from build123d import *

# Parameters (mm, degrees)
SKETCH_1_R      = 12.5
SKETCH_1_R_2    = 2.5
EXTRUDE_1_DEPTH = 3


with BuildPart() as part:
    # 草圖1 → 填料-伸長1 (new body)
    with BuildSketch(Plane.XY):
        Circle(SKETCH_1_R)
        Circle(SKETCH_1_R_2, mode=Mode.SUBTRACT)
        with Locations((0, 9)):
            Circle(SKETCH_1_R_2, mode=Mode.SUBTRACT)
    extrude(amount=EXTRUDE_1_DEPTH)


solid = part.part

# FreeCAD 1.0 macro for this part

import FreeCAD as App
import Part
import Sketcher
Q = App.Units.Quantity

doc = App.newDocument("Part")
body = doc.addObject("PartDesign::Body", "Body")

sketch1 = body.newObject("Sketcher::SketchObject", "Sketch")
sketch1.AttachmentSupport = (doc.getObject("XY_Plane"), [""])
sketch1.MapMode = "FlatFace"
sketch1.addGeometry([
    Part.Circle(App.Vector(0, 0, 0), App.Vector(0, 0, 1), 12.5),
    Part.Circle(App.Vector(0, 0, 0), App.Vector(0, 0, 1), 2.5),
    Part.Circle(App.Vector(0, 9, 0), App.Vector(0, 0, 1), 2.5),
], False)
sketch1.addConstraint([
    Sketcher.Constraint("Coincident", 0, 3, -1, 1),
    Sketcher.Constraint("Coincident", 1, 3, -1, 1),
    Sketcher.Constraint("Equal", 1, 2),
    Sketcher.Constraint("PointOnObject", 2, 3, -2),
    Sketcher.Constraint("Diameter", 0, Q("25 mm")),
    Sketcher.Constraint("Diameter", 1, Q("5 mm")),
    Sketcher.Constraint("DistanceY", -1, 1, 2, 3, Q("9 mm")),
])
pad1 = body.newObject("PartDesign::Pad", "Pad")
pad1.Profile = sketch1
pad1.Length = 3

doc.recompute()
